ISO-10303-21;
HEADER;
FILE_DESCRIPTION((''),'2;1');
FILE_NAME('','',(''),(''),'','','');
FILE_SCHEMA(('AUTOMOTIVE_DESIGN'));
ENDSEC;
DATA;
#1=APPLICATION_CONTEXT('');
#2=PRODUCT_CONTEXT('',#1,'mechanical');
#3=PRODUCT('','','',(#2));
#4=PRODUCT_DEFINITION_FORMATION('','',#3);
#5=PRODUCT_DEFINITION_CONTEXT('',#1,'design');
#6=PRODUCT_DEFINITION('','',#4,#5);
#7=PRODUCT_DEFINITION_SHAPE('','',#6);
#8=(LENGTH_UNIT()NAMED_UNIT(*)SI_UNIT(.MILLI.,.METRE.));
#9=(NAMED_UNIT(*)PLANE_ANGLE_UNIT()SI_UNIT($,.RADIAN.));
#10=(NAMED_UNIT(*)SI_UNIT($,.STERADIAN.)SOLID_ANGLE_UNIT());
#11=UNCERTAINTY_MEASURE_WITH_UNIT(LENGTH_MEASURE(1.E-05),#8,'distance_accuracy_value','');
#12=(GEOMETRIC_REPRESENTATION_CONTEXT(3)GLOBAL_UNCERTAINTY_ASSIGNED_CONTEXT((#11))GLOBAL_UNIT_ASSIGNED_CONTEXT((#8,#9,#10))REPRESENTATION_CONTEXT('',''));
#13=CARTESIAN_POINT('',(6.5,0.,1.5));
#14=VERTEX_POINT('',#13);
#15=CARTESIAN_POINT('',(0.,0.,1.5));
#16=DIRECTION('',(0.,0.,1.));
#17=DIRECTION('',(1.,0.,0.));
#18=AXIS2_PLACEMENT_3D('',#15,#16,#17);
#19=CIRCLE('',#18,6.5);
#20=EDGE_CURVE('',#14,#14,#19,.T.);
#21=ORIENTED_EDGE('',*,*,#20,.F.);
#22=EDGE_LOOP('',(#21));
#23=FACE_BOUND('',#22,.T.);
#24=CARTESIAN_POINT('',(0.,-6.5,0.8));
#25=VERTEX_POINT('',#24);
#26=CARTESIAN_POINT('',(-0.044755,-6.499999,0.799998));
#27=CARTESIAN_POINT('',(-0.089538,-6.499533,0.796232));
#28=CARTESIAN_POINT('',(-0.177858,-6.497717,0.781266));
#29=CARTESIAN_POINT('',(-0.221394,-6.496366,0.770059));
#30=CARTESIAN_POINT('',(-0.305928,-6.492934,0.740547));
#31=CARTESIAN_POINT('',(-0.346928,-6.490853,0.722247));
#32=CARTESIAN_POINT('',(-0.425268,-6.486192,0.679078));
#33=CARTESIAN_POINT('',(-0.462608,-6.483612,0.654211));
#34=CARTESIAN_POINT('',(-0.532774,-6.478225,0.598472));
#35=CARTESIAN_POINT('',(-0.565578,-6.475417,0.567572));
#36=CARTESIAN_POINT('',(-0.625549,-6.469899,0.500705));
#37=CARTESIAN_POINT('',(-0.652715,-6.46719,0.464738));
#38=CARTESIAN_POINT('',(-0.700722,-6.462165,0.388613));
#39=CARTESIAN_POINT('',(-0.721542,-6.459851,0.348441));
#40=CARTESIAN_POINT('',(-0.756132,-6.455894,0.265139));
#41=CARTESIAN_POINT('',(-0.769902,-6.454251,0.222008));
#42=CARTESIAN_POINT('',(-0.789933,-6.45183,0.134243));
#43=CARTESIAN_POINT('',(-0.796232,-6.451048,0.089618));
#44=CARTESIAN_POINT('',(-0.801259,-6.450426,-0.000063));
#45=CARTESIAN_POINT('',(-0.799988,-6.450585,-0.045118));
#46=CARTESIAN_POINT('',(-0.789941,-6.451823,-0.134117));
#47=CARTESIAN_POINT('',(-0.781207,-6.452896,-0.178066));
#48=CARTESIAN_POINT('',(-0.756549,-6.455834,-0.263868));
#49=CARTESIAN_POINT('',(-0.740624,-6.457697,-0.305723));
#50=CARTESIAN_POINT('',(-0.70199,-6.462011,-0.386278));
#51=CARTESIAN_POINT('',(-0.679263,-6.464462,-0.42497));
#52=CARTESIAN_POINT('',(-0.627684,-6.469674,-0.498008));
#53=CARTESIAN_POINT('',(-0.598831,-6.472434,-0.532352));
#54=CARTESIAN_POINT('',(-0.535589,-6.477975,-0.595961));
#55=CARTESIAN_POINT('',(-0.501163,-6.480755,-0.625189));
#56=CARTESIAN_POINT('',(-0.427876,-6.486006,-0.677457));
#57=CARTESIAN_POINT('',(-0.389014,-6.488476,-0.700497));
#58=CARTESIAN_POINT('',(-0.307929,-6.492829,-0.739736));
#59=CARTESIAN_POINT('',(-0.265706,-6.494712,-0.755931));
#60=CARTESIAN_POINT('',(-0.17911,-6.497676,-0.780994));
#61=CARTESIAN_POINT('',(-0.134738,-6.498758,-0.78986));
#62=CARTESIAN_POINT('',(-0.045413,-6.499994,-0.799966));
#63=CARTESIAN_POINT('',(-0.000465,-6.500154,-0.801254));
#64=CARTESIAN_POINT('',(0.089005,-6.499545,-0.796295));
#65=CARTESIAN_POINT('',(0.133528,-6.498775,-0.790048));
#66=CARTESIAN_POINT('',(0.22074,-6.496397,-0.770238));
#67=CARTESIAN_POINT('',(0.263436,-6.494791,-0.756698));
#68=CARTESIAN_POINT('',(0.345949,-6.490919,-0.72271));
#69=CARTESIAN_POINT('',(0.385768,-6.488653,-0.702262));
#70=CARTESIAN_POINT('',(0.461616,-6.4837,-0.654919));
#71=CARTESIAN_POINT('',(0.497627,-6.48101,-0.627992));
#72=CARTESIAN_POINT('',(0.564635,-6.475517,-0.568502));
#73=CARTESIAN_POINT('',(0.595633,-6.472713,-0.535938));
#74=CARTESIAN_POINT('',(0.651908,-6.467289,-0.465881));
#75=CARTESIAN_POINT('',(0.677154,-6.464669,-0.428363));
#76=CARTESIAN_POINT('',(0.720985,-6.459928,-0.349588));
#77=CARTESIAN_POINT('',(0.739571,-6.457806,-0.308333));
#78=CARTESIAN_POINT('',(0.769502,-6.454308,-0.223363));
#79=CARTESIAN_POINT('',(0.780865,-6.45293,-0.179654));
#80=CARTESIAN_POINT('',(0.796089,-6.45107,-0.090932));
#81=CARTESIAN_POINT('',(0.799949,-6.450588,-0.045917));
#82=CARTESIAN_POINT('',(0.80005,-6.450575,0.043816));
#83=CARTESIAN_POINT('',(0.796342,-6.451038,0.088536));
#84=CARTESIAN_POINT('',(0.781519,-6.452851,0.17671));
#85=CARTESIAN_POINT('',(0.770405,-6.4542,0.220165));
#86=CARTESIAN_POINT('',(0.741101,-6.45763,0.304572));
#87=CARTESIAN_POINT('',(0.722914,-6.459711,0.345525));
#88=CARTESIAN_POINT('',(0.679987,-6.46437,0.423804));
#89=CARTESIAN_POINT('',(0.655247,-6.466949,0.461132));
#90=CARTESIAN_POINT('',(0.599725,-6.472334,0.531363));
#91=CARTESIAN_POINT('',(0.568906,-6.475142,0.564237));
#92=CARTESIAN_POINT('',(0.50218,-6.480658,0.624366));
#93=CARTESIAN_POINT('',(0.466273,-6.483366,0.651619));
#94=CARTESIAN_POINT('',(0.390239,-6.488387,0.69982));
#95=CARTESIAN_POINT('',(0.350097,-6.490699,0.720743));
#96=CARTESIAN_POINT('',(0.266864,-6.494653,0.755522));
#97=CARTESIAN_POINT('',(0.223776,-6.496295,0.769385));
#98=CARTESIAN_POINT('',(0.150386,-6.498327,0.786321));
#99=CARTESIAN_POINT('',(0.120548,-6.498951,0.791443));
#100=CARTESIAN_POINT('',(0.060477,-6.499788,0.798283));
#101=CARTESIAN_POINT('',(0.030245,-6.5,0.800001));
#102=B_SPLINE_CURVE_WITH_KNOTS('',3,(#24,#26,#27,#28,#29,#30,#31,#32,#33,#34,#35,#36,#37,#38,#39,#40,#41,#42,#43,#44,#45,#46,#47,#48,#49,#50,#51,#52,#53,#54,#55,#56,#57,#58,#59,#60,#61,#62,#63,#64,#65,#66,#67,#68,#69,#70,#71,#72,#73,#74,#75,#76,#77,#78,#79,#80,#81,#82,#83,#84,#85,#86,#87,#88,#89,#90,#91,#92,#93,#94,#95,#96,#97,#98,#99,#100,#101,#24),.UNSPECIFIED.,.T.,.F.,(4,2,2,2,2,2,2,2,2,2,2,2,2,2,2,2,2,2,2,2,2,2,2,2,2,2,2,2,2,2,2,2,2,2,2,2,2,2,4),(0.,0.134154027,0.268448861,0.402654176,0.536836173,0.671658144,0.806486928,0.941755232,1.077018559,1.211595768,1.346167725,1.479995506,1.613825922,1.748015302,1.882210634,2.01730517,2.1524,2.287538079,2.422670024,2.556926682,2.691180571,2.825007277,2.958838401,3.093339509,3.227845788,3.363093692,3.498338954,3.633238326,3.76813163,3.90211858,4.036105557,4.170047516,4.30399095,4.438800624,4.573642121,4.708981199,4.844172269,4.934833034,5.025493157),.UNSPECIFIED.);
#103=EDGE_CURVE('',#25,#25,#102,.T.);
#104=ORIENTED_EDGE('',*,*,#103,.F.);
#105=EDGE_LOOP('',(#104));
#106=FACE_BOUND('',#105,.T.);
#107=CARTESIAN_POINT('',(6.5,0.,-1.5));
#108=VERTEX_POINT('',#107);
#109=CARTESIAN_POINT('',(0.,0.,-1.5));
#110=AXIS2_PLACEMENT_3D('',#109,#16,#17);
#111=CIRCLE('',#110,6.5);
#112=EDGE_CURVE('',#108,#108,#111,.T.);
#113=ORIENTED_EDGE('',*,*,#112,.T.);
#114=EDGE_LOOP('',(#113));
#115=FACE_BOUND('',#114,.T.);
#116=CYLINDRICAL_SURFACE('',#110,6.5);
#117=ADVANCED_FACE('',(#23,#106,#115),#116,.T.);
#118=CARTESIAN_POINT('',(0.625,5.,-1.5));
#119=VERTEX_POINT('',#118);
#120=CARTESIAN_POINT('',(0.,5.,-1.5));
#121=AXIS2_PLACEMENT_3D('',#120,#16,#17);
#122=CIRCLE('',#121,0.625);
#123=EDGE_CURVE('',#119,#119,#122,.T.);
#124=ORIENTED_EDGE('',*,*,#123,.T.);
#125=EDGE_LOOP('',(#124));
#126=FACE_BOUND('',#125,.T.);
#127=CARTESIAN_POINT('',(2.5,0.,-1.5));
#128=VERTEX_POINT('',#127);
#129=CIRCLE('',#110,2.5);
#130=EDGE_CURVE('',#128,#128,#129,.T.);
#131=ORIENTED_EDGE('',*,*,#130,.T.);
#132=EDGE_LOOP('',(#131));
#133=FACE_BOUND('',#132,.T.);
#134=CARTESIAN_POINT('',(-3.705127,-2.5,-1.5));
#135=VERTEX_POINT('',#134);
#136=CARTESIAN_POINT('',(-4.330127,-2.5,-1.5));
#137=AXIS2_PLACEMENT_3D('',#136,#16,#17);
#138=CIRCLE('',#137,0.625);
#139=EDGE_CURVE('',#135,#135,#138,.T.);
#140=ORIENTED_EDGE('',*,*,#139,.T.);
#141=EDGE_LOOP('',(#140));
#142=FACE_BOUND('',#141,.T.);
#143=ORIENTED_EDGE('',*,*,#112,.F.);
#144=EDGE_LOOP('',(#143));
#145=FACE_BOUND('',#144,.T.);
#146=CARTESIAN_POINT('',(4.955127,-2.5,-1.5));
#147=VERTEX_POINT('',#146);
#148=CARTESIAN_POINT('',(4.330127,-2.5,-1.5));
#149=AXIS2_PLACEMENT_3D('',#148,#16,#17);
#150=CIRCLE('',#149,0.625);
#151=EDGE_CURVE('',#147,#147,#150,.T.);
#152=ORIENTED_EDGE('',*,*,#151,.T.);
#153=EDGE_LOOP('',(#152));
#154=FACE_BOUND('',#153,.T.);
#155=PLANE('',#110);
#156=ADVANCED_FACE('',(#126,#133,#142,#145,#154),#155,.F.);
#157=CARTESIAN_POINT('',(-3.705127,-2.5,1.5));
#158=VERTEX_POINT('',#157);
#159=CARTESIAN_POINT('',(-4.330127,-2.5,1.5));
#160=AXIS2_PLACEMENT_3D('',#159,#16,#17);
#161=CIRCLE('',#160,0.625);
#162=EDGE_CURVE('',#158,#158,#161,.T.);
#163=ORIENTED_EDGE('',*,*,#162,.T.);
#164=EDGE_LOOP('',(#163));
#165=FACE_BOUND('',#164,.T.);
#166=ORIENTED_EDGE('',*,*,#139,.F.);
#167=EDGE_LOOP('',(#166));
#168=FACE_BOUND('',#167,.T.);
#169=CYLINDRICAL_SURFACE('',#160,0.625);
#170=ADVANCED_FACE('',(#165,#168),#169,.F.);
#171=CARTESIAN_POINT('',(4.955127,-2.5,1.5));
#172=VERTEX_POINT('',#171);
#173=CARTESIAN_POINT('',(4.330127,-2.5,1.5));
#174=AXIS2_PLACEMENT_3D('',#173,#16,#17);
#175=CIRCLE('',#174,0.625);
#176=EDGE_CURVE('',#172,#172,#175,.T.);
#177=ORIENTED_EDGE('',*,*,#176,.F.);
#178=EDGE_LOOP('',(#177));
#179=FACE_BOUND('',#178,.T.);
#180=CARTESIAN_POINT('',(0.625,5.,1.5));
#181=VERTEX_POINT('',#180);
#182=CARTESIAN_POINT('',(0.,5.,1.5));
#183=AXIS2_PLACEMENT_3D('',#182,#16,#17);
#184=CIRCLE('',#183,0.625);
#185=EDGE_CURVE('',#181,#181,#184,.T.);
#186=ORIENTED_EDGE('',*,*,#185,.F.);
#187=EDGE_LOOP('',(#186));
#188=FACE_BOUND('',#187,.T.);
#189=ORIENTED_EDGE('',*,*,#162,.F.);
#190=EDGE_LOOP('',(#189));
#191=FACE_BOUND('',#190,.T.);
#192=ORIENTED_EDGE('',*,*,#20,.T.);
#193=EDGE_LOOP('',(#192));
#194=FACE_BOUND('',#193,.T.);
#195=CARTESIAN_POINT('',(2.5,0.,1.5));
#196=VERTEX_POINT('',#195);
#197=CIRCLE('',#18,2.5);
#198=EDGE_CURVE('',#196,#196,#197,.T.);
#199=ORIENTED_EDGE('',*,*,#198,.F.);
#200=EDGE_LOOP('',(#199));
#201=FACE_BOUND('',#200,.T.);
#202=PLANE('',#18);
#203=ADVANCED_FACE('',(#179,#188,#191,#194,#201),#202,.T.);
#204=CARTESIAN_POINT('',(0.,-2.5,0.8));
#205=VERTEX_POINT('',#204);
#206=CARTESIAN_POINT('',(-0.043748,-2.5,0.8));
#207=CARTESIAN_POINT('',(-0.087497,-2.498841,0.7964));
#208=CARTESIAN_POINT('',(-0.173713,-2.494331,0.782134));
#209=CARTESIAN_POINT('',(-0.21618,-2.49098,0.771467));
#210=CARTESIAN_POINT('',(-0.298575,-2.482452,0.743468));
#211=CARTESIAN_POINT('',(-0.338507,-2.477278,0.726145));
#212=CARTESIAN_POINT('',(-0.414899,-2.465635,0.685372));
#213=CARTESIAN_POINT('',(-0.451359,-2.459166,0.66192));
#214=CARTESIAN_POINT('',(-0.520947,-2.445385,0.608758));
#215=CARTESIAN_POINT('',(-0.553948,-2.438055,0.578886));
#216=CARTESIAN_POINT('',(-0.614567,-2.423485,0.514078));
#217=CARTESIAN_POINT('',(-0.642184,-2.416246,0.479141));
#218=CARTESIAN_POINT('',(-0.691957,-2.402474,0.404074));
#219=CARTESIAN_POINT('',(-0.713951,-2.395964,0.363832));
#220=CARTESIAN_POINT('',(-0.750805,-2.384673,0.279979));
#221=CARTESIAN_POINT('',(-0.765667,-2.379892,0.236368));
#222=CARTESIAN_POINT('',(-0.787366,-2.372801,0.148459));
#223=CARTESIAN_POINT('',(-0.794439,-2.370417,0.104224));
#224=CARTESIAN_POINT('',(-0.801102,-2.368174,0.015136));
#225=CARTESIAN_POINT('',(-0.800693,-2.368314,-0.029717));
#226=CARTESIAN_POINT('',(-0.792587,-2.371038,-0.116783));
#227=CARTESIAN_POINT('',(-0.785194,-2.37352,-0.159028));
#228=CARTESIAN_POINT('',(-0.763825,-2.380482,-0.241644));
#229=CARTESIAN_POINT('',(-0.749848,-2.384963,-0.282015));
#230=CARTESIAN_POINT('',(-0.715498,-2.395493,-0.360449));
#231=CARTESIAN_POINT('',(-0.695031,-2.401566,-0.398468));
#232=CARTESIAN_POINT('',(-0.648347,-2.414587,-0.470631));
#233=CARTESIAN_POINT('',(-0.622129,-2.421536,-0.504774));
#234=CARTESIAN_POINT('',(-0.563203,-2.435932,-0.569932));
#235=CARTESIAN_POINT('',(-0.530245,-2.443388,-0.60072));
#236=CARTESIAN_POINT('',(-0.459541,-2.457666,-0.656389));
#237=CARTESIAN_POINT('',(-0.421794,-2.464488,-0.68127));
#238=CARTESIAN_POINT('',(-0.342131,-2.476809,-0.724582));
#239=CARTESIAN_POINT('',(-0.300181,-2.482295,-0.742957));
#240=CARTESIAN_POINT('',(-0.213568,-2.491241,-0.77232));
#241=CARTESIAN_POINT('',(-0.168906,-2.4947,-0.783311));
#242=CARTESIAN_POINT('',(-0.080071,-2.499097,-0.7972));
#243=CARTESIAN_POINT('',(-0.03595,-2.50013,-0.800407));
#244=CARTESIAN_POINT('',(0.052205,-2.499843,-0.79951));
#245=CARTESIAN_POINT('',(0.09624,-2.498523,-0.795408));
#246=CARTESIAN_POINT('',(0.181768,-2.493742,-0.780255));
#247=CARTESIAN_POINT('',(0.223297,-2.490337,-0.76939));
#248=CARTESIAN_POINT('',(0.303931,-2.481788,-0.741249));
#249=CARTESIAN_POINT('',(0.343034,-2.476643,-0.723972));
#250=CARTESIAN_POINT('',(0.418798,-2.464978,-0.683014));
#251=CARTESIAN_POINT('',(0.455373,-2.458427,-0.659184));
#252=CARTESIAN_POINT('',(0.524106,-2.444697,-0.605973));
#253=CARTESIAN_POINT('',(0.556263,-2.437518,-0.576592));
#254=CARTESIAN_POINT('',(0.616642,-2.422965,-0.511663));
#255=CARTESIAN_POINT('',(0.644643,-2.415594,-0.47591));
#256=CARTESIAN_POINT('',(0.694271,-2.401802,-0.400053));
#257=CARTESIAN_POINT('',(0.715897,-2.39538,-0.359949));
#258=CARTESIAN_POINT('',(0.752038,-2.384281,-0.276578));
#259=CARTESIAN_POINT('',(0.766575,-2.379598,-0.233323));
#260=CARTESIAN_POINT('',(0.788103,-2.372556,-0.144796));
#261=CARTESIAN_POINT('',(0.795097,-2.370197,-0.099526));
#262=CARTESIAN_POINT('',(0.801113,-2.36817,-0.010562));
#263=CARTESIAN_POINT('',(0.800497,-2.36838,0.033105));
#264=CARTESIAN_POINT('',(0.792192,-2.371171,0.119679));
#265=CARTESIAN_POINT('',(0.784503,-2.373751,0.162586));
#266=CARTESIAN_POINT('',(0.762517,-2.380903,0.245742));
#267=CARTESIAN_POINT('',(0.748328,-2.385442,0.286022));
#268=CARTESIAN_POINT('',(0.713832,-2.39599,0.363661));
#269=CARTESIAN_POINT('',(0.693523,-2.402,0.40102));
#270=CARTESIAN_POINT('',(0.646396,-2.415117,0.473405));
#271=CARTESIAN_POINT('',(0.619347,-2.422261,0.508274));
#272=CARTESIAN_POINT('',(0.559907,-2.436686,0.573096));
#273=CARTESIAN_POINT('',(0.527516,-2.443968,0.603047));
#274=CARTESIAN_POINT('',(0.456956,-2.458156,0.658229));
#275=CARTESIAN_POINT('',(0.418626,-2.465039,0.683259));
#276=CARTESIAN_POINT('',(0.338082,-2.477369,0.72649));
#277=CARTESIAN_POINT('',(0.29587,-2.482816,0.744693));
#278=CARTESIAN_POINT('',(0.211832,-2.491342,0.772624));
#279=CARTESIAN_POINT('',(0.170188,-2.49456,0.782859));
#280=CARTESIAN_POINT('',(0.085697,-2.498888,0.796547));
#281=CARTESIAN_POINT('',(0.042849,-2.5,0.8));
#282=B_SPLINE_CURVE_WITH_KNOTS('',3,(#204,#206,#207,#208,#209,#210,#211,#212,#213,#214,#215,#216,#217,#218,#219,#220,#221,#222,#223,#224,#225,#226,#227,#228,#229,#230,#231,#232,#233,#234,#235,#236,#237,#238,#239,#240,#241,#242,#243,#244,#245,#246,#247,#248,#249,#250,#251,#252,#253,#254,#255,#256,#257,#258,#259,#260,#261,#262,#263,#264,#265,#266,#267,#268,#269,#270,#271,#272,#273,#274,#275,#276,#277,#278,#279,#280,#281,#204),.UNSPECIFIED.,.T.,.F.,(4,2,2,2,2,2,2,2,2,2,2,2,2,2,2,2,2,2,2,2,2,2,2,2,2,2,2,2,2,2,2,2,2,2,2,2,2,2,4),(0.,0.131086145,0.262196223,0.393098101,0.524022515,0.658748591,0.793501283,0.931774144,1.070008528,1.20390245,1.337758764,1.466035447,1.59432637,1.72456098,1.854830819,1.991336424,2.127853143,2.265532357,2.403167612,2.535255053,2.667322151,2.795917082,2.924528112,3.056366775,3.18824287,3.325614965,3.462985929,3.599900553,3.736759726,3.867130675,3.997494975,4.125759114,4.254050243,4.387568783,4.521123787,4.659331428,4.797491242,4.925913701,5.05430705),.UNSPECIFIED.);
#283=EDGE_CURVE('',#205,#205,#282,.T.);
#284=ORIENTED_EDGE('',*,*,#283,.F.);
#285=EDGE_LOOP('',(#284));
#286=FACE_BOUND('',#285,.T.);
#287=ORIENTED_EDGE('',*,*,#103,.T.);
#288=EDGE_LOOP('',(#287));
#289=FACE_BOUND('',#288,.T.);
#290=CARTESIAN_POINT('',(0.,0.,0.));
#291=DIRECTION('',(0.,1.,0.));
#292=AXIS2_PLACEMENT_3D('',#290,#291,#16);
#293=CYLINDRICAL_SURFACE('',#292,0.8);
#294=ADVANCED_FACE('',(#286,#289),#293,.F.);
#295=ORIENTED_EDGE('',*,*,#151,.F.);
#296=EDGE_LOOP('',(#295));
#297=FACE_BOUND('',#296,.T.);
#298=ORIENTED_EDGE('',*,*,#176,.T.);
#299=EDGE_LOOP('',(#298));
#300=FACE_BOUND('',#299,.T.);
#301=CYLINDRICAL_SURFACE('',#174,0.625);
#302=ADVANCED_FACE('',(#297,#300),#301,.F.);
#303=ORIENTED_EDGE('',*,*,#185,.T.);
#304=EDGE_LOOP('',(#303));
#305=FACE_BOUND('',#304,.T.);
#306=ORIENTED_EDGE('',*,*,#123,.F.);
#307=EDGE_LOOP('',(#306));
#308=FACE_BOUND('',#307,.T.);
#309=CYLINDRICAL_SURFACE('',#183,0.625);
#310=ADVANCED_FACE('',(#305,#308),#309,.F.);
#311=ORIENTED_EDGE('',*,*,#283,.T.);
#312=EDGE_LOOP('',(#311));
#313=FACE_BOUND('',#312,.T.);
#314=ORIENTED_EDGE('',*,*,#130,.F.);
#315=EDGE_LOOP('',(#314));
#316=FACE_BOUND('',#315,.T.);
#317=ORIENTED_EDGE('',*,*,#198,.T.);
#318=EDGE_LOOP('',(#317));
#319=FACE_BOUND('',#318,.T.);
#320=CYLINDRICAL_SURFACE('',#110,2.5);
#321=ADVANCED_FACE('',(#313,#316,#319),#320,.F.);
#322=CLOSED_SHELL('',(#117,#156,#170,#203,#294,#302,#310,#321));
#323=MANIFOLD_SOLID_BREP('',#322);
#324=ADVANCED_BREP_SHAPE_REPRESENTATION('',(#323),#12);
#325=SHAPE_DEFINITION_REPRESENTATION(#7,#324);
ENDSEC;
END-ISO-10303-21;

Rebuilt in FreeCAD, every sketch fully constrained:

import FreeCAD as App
import Part
import Sketcher
from FreeCAD import Vector
Q = App.Units.Quantity

doc = App.newDocument("Part")
body = doc.addObject("PartDesign::Body", "Body")

# Sketch on XY plane
sketch1 = body.newObject("Sketcher::SketchObject", "Sketch")
sketch1.AttachmentSupport = (doc.getObject("XY_Plane"), [""])
sketch1.MapMode = "FlatFace"
sketch1.addGeometry(Part.Circle(Vector(0, 0, 0), Vector(0, 0, 1), 6), False)
sketch1.addConstraint([
    Sketcher.Constraint("Coincident", 0, 3, -1, 1),
    Sketcher.Constraint("Diameter", 0, Q("13 mm")),
])
pad1 = body.newObject("PartDesign::Pad", "Pad")
pad1.Profile = sketch1
pad1.Length = 3
pad1.Midplane = True

# Sketch on XY plane
sketch2 = body.newObject("Sketcher::SketchObject", "Sketch001")
sketch2.AttachmentSupport = (doc.getObject("XY_Plane"), [""])
sketch2.MapMode = "FlatFace"
sketch2.AttachmentOffset = App.Placement(Vector(0, 0, 1.5), App.Rotation())
sketch2.addGeometry(Part.Circle(Vector(0, 0, 0), Vector(0, 0, 1), 2.5), False)
sketch2.addConstraint([
    Sketcher.Constraint("Coincident", 0, 3, -1, 1),
    Sketcher.Constraint("Diameter", 0, Q("5 mm")),
])
pocket1 = body.newObject("PartDesign::Pocket", "Pocket")
pocket1.Profile = sketch2
pocket1.Type = "ThroughAll"

# Sketch on XY plane
sketch3 = body.newObject("Sketcher::SketchObject", "Sketch002")
sketch3.AttachmentSupport = (doc.getObject("XY_Plane"), [""])
sketch3.MapMode = "FlatFace"
sketch3.AttachmentOffset = App.Placement(Vector(0, 0, 1.5), App.Rotation())
sketch3.addGeometry([
    Part.Circle(Vector(0, 5, 0), Vector(0, 0, 1), 0.6),
    Part.Circle(Vector(4.3, -2.5, 0), Vector(0, 0, 1), 0.6),
    Part.Circle(Vector(-4.3, -2.5, 0), Vector(0, 0, 1), 0.6),
], False)
sketch3.addConstraint([
    Sketcher.Constraint("Equal", 0, 1),
    Sketcher.Constraint("Equal", 1, 2),
    Sketcher.Constraint("Symmetric", 1, 3, 2, 3, -2),
    Sketcher.Constraint("PointOnObject", 0, 3, -2),
    Sketcher.Constraint("Diameter", 0, Q("1.25 mm")),
    Sketcher.Constraint("DistanceY", -1, 1, 0, 3, Q("5 mm")),
    Sketcher.Constraint("DistanceY", 1, 3, -1, 1, Q("2.5 mm")),
    Sketcher.Constraint("DistanceX", -1, 1, 1, 3, Q("4.330127 mm")),
])
doc.recompute()
hole = body.newObject("PartDesign::Hole", "Hole")
hole.Profile = sketch3
hole.ThreadType = "None"
hole.Diameter = 1.25
hole.DepthType = "ThroughAll"

# Sketch on YZ plane
sketch4 = body.newObject("Sketcher::SketchObject", "Sketch003")
sketch4.AttachmentSupport = (doc.getObject("YZ_Plane"), [""])
sketch4.MapMode = "FlatFace"
sketch4.addGeometry([
    Part.LineSegment(Vector(-6.5, 0, 0), Vector(0, 0, 0)),
    Part.LineSegment(Vector(0, 0, 0), Vector(0, 0.8, 0)),
    Part.LineSegment(Vector(0, 0.8, 0), Vector(-6.5, 0.8, 0)),
    Part.LineSegment(Vector(-6.5, 0.8, 0), Vector(-6.5, 0, 0)),
], False)
sketch4.addConstraint([
    Sketcher.Constraint("Coincident", 0, 2, 1, 1),
    Sketcher.Constraint("Coincident", 1, 2, 2, 1),
    Sketcher.Constraint("Coincident", 2, 2, 3, 1),
    Sketcher.Constraint("Coincident", 3, 2, 0, 1),
    Sketcher.Constraint("Horizontal", 0),
    Sketcher.Constraint("Vertical", 1),
    Sketcher.Constraint("Horizontal", 2),
    Sketcher.Constraint("Vertical", 3),
    Sketcher.Constraint("Coincident", 0, 2, -1, 1),
    Sketcher.Constraint("DistanceX", 0, 1, 0, 2, Q("6.5 mm")),
    Sketcher.Constraint("DistanceY", 1, 1, 1, 2, Q("0.8 mm")),
])
groove = body.newObject("PartDesign::Groove", "Groove")
groove.Profile = sketch4
groove.ReferenceAxis = (sketch4, ["H_Axis"])
groove.Angle = 360

doc.recompute()
